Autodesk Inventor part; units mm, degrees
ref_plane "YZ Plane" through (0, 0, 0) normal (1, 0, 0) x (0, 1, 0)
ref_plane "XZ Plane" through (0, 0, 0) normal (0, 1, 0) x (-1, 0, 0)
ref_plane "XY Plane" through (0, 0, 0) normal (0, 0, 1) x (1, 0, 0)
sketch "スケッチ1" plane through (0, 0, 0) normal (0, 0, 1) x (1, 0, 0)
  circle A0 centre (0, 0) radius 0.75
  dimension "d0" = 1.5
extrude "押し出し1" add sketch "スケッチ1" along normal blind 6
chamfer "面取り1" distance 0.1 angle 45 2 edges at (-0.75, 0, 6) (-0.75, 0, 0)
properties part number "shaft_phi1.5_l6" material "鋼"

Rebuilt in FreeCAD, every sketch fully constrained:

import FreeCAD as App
import Part
import Sketcher
from FreeCAD import Vector
Q = App.Units.Quantity


def edges_at(feature, points):
    """Names of the edges that pass closest to the given points."""
    edges = feature.Shape.Edges
    near = lambda p: min(range(len(edges)), key=lambda i: edges[i].distToShape(Part.Vertex(*p))[0])
    return sorted({f"Edge{near(p) + 1}" for p in points})

doc = App.newDocument("Part")
body = doc.addObject("PartDesign::Body", "Body")

# Sketch on XY plane
sketch1 = body.newObject("Sketcher::SketchObject", "Sketch")
sketch1.AttachmentSupport = (doc.getObject("XY_Plane"), [""])
sketch1.MapMode = "FlatFace"
sketch1.addGeometry(Part.Circle(Vector(0, 0, 0), Vector(0, 0, 1), 0.75), False)
sketch1.addConstraint([
    Sketcher.Constraint("Coincident", 0, 3, -1, 1),
    Sketcher.Constraint("Diameter", 0, Q("1.5 mm")),
])
pad1 = body.newObject("PartDesign::Pad", "Pad")
pad1.Profile = sketch1
pad1.Length = 6
doc.recompute()

chamfer = body.newObject("PartDesign::Chamfer", "Chamfer")
chamfer.Base = (pad1, edges_at(pad1, [(-0.75, 0, 6), (-0.75, 0, 0)]))
chamfer.Size = 0.1

doc.recompute()
